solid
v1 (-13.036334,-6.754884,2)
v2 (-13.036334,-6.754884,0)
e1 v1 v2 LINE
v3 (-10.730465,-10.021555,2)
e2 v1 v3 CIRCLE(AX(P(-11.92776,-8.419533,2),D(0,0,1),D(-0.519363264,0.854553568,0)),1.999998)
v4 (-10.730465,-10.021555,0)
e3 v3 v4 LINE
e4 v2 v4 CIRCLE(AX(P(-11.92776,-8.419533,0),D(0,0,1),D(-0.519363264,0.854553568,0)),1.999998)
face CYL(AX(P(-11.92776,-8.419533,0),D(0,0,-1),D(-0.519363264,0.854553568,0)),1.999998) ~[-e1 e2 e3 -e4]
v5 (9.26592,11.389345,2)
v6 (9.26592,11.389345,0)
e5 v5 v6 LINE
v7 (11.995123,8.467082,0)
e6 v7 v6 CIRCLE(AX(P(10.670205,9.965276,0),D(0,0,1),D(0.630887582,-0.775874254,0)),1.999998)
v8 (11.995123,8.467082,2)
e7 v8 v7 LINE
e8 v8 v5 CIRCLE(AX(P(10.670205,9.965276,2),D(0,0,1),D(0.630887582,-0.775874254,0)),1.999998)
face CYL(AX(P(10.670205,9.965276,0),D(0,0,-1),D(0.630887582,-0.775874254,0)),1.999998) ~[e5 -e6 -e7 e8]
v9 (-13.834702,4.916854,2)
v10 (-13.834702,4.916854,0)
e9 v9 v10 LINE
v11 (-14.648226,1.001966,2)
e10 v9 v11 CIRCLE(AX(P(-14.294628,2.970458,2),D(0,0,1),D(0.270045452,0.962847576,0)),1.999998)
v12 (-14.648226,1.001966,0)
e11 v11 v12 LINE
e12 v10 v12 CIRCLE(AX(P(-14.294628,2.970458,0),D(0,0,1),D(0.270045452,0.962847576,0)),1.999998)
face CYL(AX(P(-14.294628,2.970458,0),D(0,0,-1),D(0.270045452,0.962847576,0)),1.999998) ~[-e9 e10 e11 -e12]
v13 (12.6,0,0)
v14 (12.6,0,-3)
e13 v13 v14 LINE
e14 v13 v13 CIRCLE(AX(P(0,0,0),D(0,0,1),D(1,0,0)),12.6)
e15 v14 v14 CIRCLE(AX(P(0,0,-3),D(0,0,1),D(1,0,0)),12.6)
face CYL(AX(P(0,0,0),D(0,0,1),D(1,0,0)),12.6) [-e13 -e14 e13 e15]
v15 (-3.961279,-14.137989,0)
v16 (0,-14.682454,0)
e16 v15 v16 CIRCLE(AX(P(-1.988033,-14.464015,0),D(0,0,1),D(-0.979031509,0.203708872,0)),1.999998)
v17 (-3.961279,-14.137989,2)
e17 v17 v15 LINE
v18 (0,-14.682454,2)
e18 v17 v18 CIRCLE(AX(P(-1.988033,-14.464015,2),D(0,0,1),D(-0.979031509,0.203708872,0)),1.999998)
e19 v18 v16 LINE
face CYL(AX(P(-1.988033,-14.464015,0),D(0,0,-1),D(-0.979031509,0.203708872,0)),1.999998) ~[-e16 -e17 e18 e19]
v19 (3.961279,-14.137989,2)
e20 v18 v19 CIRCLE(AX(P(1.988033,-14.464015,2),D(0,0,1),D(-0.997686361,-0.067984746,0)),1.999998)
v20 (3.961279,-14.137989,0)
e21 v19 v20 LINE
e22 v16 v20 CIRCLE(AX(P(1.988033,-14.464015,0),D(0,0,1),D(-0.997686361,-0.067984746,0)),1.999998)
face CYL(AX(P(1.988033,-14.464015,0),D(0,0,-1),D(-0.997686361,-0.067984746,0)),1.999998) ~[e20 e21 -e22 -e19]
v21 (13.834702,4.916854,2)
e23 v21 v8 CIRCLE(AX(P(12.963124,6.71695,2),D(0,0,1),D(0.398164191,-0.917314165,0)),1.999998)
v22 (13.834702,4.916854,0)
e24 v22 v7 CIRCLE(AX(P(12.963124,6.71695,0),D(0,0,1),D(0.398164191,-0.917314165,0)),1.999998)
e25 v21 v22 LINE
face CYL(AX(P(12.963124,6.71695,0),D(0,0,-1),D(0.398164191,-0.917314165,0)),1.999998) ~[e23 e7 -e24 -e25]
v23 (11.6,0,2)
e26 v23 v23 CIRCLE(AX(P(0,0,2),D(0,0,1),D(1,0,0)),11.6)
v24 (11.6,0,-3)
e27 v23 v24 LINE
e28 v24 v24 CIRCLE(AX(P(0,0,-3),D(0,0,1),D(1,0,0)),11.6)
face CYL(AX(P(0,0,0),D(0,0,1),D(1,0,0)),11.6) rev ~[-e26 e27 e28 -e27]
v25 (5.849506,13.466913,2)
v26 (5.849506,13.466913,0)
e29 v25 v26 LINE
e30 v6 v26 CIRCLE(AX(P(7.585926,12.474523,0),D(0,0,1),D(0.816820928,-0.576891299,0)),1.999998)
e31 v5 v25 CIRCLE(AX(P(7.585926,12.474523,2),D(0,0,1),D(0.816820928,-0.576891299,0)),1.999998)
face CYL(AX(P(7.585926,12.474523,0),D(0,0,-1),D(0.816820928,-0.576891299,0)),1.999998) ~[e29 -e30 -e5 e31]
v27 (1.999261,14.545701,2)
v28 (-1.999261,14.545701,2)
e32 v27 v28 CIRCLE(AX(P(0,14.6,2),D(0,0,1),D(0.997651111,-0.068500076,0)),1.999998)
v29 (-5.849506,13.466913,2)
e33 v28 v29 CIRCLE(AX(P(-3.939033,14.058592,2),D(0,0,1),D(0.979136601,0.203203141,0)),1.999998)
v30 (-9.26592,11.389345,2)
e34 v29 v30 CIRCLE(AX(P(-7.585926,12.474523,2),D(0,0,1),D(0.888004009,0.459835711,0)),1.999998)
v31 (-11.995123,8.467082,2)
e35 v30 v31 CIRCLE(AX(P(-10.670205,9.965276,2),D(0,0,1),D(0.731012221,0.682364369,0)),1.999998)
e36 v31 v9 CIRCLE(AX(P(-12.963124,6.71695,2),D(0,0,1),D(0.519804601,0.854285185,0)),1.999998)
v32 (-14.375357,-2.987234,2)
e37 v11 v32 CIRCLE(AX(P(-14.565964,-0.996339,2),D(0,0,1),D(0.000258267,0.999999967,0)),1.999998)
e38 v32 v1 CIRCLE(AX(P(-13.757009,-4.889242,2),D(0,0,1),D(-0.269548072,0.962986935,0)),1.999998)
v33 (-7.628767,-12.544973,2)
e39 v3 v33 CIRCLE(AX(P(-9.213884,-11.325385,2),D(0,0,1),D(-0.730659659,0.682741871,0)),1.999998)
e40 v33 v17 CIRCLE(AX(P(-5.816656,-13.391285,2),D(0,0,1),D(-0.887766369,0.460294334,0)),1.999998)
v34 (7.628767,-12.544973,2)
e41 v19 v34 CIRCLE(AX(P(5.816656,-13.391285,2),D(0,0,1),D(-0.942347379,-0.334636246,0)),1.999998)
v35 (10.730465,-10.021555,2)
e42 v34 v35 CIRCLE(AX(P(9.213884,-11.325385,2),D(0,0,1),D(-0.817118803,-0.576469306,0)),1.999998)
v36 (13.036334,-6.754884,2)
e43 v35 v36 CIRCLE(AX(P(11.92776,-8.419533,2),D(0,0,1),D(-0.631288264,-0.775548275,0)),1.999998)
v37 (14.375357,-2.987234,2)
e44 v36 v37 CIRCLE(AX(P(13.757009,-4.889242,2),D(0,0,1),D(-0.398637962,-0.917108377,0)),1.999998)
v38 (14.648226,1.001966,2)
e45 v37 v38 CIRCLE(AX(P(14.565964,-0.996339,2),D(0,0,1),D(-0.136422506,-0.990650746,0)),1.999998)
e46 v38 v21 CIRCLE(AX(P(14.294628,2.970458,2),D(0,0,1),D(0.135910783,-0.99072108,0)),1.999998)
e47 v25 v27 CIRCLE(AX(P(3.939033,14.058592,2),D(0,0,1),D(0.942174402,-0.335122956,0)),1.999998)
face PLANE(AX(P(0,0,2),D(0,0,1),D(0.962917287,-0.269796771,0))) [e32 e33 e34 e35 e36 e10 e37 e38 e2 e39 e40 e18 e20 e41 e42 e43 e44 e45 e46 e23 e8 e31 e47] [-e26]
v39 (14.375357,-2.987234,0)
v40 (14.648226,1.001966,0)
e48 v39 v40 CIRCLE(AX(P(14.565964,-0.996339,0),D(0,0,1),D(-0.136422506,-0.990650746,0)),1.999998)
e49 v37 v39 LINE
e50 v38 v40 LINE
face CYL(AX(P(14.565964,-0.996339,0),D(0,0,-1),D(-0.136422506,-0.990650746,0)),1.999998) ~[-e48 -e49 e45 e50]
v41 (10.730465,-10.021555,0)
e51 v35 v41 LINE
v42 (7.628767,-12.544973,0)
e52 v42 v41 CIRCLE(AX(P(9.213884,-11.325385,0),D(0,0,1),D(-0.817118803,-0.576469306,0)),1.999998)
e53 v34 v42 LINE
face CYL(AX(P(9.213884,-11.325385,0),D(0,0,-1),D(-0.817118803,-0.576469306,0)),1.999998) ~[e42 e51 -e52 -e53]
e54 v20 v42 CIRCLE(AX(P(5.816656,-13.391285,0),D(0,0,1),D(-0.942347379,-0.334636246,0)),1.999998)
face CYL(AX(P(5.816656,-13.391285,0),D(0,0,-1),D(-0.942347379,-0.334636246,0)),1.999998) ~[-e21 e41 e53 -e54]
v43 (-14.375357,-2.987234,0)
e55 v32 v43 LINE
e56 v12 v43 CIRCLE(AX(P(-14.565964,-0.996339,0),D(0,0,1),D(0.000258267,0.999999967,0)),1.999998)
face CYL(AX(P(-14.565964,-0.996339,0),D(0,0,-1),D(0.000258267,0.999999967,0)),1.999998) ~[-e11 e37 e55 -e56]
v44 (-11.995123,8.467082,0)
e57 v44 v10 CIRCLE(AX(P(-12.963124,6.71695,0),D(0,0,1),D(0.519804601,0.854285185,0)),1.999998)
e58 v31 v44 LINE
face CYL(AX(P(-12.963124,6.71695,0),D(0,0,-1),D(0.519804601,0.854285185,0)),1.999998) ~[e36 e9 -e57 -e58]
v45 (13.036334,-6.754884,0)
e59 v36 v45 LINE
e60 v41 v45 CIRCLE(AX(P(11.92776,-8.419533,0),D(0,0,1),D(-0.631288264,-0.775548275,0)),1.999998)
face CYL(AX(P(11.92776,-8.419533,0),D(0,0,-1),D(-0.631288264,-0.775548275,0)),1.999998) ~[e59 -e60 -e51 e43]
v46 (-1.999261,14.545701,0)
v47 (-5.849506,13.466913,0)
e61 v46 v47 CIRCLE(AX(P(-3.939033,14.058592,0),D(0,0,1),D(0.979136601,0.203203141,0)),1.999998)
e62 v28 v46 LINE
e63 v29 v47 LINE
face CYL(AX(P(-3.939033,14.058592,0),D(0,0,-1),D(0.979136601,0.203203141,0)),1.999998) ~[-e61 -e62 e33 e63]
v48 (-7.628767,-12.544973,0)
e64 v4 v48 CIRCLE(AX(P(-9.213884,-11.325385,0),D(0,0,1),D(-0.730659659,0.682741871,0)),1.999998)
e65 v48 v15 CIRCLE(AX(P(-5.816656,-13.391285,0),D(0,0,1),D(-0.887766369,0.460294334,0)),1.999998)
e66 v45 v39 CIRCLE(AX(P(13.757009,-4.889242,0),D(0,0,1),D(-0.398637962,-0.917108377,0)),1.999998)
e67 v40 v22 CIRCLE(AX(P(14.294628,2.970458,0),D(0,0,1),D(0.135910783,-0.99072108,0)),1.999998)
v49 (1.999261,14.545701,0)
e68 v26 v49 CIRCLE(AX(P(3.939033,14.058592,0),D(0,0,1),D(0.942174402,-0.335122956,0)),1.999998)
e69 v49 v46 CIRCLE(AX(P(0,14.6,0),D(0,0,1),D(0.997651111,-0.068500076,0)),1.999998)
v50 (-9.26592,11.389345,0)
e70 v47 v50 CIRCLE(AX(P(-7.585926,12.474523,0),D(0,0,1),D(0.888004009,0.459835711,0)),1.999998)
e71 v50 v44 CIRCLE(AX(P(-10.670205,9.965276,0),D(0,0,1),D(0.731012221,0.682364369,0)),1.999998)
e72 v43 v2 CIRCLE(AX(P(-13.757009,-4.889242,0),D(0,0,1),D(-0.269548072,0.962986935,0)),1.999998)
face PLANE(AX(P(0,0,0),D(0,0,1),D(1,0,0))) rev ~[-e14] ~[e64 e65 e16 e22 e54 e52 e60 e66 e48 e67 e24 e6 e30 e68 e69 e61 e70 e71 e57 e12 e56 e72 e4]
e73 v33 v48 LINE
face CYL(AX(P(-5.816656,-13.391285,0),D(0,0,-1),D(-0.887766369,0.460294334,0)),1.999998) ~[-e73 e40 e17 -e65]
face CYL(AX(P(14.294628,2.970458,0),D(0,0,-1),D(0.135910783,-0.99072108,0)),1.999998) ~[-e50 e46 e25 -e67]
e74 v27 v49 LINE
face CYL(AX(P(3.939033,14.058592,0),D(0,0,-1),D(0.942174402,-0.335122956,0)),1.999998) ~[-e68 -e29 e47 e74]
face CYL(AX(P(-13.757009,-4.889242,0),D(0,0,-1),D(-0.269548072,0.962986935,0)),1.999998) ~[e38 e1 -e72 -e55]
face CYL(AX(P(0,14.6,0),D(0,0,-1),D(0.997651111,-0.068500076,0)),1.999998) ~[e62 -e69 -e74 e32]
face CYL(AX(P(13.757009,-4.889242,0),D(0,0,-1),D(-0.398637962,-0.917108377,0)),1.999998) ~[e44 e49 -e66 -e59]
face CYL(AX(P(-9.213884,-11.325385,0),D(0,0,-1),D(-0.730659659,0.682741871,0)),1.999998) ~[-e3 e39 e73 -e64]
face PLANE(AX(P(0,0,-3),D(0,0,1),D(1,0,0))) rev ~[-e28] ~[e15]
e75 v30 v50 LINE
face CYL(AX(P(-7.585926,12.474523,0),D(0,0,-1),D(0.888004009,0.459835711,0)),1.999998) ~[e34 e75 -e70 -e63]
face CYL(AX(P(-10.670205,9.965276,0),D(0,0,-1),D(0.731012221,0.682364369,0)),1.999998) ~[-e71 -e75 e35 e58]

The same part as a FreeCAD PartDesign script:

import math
import FreeCAD as App
import Part
import Sketcher

V = App.Vector

doc = App.newDocument("Part")
body = doc.addObject("PartDesign::Body", "Body")

sketch1 = body.newObject("Sketcher::SketchObject", "Sketch")
sketch1.AttachmentSupport = (doc.getObject("XY_Plane"), [""])
sketch1.MapMode = "FlatFace"
sketch1.addGeometry([
    Part.Circle(V(0, 0, 0), V(0, 0, 1), 12.6),
    Part.Circle(V(0, 0, 0), V(0, 0, 1), 11.6),
], False)
sketch1.addConstraint([
    Sketcher.Constraint("Coincident", 0, 3, -1, 1),
    Sketcher.Constraint("Coincident", 1, 3, -1, 1),
    Sketcher.Constraint("Diameter", 0, 25.2),
    Sketcher.Constraint("Diameter", 1, 23.2),
])
pad1 = body.newObject("PartDesign::Pad", "Pad")
pad1.Profile = sketch1
pad1.Length = 3
pad1.Reversed = True

sketch2 = body.newObject("Sketcher::SketchObject", "Sketch001")
sketch2.AttachmentSupport = (doc.getObject("XY_Plane"), [""])
sketch2.MapMode = "FlatFace"
sketch2.addGeometry([
    Part.ArcOfCircle(Part.Circle(V(0, 0, 0), V(0, 0, 1), 14.6), math.radians(97.854882), math.radians(442.145118)),
    Part.ArcOfCircle(Part.Circle(V(0, 14.6, 0), V(0, 0, 1), 1.999998), math.radians(-3.927841), math.radians(183.927841)),
    Part.Circle(V(0, 0, 0), V(0, 0, 1), 11.6),
], False)
sketch2.addConstraint([
    Sketcher.Constraint("Coincident", 0, 1, 1, 2),
    Sketcher.Constraint("Coincident", 1, 1, 0, 2),
    Sketcher.Constraint("Coincident", 0, 3, -1, 1),
    Sketcher.Constraint("Coincident", 2, 3, -1, 1),
    Sketcher.Constraint("PointOnObject", 1, 3, -2),
    Sketcher.Constraint("Radius", 1, 2.0),
    Sketcher.Constraint("Diameter", 2, 23.2),
    Sketcher.Constraint("Radius", 0, 14.6),
    Sketcher.Constraint("DistanceY", -1, 1, 1, 3, 14.6),
])
pad2 = body.newObject("PartDesign::Pad", "Pad001")
pad2.Profile = sketch2
pad2.Length = 2
doc.recompute()

polarpattern = body.newObject("PartDesign::PolarPattern", "PolarPattern")
polarpattern.Originals = [pad2]
polarpattern.Axis = (doc.getObject("Z_Axis"), [""])
polarpattern.Angle = 360
polarpattern.Occurrences = 23
body.Tip = polarpattern

doc.recompute()
